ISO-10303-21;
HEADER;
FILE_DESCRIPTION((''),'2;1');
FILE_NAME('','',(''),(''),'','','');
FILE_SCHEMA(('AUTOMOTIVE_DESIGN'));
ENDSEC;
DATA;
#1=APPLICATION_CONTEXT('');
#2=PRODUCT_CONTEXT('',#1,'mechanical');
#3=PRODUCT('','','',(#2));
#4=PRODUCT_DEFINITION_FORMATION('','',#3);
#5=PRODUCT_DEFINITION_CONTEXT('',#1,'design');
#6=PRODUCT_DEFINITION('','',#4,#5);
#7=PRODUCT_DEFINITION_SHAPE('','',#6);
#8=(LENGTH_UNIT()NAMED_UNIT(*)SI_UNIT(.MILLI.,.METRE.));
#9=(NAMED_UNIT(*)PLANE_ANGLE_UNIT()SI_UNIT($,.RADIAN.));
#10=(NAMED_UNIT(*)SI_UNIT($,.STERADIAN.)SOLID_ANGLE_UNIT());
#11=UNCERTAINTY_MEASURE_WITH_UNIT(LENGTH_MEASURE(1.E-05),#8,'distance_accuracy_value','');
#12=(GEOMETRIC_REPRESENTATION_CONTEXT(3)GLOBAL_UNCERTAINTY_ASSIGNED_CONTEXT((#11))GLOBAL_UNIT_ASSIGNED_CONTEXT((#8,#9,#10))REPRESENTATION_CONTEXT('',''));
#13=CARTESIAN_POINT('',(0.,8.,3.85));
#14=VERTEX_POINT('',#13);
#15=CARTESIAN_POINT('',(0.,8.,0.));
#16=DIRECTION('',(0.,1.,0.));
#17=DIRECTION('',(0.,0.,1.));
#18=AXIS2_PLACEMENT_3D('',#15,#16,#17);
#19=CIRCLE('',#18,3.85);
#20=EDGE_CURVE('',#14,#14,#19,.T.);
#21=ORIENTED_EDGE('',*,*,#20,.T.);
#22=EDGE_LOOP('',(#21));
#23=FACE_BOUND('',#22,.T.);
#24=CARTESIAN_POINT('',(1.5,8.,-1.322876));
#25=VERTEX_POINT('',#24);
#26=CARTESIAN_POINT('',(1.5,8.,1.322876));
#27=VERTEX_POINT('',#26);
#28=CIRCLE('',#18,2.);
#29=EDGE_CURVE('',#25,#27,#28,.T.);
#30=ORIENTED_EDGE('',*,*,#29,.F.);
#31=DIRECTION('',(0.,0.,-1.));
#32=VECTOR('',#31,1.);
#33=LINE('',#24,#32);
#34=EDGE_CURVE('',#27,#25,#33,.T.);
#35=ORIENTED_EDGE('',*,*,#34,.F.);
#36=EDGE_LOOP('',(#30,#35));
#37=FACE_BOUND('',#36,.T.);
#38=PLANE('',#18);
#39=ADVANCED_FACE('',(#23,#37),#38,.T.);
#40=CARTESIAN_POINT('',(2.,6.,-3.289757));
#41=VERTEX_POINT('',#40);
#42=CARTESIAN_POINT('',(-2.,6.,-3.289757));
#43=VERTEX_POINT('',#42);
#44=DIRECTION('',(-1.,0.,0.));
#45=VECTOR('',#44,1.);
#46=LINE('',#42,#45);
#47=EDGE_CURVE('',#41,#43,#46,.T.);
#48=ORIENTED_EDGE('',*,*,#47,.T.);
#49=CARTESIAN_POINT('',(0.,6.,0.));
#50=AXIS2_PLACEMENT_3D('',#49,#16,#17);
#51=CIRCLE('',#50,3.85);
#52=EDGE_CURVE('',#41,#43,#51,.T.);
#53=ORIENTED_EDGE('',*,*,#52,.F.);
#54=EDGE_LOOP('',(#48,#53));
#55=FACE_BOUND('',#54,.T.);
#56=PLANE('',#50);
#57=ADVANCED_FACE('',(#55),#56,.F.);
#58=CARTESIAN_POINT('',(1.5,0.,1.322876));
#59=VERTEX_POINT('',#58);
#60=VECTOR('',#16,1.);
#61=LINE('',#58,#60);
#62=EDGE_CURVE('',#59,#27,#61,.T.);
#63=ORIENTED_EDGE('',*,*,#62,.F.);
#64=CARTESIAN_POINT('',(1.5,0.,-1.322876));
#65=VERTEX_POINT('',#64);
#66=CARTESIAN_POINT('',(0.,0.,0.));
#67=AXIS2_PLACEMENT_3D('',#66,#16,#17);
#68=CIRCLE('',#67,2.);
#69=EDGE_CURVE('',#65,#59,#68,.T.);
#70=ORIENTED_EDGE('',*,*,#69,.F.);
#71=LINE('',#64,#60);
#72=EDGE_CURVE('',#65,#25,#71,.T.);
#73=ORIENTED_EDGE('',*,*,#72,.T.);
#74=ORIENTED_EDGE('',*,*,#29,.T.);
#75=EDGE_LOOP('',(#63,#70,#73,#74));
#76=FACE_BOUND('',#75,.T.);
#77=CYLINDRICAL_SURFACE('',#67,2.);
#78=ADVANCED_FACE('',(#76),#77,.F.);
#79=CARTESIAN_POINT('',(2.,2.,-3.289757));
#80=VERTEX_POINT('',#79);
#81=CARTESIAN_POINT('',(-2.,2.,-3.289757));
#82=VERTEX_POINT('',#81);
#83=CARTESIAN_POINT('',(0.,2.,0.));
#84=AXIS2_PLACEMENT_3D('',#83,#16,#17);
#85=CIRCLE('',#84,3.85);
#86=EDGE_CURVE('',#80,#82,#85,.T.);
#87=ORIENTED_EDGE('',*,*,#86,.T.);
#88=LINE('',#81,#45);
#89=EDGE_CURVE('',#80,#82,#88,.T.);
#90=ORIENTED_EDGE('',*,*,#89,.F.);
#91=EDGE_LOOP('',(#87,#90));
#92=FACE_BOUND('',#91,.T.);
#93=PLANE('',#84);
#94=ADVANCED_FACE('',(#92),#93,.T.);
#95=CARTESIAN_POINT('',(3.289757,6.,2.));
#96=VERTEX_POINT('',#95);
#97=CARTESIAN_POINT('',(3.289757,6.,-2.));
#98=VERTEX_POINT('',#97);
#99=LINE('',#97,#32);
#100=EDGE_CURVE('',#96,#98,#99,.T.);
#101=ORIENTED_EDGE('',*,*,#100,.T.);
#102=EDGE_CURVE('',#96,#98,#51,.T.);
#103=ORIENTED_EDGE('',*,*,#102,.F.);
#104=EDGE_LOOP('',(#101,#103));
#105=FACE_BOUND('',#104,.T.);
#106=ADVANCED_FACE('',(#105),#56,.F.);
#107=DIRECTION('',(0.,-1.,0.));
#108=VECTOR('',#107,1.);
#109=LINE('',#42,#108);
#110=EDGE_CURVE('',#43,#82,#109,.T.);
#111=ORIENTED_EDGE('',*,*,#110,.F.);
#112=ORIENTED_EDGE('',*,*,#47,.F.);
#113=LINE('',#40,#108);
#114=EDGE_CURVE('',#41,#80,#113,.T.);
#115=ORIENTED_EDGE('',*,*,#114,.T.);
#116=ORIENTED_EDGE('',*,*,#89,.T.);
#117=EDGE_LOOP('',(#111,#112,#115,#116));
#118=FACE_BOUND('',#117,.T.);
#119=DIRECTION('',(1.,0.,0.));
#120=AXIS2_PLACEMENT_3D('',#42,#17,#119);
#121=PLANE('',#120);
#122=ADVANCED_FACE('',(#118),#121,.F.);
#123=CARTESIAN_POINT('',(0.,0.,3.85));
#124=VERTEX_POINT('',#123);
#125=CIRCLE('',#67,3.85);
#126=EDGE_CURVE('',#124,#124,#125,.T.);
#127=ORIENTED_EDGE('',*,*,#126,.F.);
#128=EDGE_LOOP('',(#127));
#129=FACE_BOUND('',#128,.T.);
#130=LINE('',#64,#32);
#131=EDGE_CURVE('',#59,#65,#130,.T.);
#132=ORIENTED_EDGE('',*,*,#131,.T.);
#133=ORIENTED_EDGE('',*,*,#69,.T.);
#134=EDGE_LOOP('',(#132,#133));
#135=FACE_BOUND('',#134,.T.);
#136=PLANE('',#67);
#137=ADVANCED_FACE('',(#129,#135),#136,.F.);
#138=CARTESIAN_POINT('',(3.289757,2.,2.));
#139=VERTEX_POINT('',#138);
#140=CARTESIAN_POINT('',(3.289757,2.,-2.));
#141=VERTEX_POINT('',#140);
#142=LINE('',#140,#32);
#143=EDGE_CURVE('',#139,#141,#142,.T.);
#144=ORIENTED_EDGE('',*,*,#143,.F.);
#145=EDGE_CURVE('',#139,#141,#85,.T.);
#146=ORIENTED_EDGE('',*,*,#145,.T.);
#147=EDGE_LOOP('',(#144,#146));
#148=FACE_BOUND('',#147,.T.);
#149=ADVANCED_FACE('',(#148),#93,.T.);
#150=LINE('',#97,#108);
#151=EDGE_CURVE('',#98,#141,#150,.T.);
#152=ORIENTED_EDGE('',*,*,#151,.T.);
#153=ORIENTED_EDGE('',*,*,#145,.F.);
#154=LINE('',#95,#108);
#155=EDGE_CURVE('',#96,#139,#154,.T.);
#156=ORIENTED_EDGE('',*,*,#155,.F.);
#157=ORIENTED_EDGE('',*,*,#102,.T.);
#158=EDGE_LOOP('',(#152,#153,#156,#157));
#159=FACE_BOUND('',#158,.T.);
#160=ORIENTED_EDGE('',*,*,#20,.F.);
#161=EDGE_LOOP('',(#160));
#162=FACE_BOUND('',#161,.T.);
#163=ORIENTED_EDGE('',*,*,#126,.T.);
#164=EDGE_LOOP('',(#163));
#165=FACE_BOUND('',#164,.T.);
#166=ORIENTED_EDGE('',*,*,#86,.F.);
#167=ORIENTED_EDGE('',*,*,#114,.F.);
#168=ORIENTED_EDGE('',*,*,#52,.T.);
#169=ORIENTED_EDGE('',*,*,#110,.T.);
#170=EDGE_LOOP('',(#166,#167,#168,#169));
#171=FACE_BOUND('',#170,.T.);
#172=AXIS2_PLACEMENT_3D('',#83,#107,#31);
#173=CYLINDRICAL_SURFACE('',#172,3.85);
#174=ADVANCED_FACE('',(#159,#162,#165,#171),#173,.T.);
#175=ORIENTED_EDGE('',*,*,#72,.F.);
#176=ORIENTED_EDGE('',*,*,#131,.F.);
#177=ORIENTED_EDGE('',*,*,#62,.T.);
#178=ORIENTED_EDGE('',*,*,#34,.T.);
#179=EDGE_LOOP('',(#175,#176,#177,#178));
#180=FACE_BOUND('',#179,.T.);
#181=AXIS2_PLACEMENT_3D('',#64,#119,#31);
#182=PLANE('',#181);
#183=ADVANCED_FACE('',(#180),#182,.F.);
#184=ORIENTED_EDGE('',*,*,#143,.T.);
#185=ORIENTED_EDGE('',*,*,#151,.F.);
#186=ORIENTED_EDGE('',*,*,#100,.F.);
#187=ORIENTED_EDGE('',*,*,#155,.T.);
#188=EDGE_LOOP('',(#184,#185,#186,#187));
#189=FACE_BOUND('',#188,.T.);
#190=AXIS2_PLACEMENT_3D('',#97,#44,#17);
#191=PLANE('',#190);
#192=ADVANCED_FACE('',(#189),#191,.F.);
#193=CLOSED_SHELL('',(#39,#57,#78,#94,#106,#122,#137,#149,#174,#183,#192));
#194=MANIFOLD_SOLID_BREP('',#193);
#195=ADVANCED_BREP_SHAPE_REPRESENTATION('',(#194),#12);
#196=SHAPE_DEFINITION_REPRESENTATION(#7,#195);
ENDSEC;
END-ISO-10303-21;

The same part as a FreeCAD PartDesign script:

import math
import FreeCAD as App
import Part
import Sketcher

V = App.Vector
Q = App.Units.Quantity

doc = App.newDocument("Part")
body = doc.addObject("PartDesign::Body", "Body")

sketch1 = body.newObject("Sketcher::SketchObject", "Sketch")
sketch1.AttachmentSupport = (doc.getObject("XZ_Plane"), [""])
sketch1.MapMode = "FlatFace"
sketch1.addGeometry(Part.Circle(V(0, 0, 0), V(0, 0, 1), 3.9), False)
sketch1.addConstraint(Sketcher.Constraint("Coincident", 0, 3, -1, 1))
sketch1.addConstraint(Sketcher.Constraint("Diameter", 0, Q("7.7 mm")))
pad1 = body.newObject("PartDesign::Pad", "Pad")
pad1.Profile = sketch1
pad1.Length = 2
pad1.Reversed = True

sketch2 = body.newObject("Sketcher::SketchObject", "Sketch001")
sketch2.AttachmentSupport = (doc.getObject("XZ_Plane"), [""])
sketch2.MapMode = "FlatFace"
sketch2.AttachmentOffset = App.Placement(V(0, 0, -2), App.Rotation())
sketch2.addGeometry(Part.LineSegment(V(3.3, 2, 0), V(3.3, -2, 0)), False)
sketch2.addGeometry(Part.ArcOfCircle(Part.Circle(V(0, 0, 0), V(0, 0, 1), 3.8), math.radians(-59), math.radians(-31)), False)
sketch2.addGeometry(Part.LineSegment(V(2, -3.3, 0), V(-2, -3.3, 0)), False)
sketch2.addGeometry(Part.ArcOfCircle(Part.Circle(V(0, 0, 0), V(0, 0, 1), 3.9), math.radians(31), math.radians(239)), False)
sketch2.addConstraint(Sketcher.Constraint("Coincident", 0, 2, 1, 2))
sketch2.addConstraint(Sketcher.Constraint("Coincident", 1, 1, 2, 1))
sketch2.addConstraint(Sketcher.Constraint("Coincident", 2, 2, 3, 2))
sketch2.addConstraint(Sketcher.Constraint("Coincident", 3, 1, 0, 1))
sketch2.addConstraint(Sketcher.Constraint("Vertical", 0))
sketch2.addConstraint(Sketcher.Constraint("Horizontal", 2))
sketch2.addConstraint(Sketcher.Constraint("Coincident", 1, 3, -1, 1))
sketch2.addConstraint(Sketcher.Constraint("Coincident", 3, 3, -1, 1))
sketch2.addConstraint(Sketcher.Constraint("Equal", 1, 3))
sketch2.addConstraint(Sketcher.Constraint("Equal", 2, 0))
sketch2.addConstraint(Sketcher.Constraint("DistanceX", 2, 2, 2, 1, Q("4 mm")))
sketch2.addConstraint(Sketcher.Constraint("Radius", 1, Q("3.85 mm")))
pad2 = body.newObject("PartDesign::Pad", "Pad001")
pad2.Profile = sketch2
pad2.Length = 4
pad2.Reversed = True

sketch3 = body.newObject("Sketcher::SketchObject", "Sketch002")
sketch3.AttachmentSupport = (doc.getObject("XZ_Plane"), [""])
sketch3.MapMode = "FlatFace"
sketch3.AttachmentOffset = App.Placement(V(0, 0, -6), App.Rotation())
sketch3.addGeometry(Part.Circle(V(0, 0, 0), V(0, 0, 1), 3.9), False)
sketch3.addConstraint(Sketcher.Constraint("Coincident", 0, 3, -1, 1))
sketch3.addConstraint(Sketcher.Constraint("Diameter", 0, Q("7.7 mm")))
pad3 = body.newObject("PartDesign::Pad", "Pad002")
pad3.Profile = sketch3
pad3.Length = 2
pad3.Reversed = True

sketch4 = body.newObject("Sketcher::SketchObject", "Sketch003")
sketch4.AttachmentSupport = (doc.getObject("XZ_Plane"), [""])
sketch4.MapMode = "FlatFace"
sketch4.AttachmentOffset = App.Placement(V(0, 0, -8), App.Rotation())
sketch4.addGeometry(Part.LineSegment(V(1.5, 1.3, 0), V(1.5, -1.3, 0)), False)
sketch4.addGeometry(Part.ArcOfCircle(Part.Circle(V(0, 0, 0), V(0, 0, 1), 2), math.radians(41), math.radians(319)), False)
sketch4.addConstraint(Sketcher.Constraint("Coincident", 0, 1, 1, 1))
sketch4.addConstraint(Sketcher.Constraint("Coincident", 1, 2, 0, 2))
sketch4.addConstraint(Sketcher.Constraint("Vertical", 0))
sketch4.addConstraint(Sketcher.Constraint("Coincident", 1, 3, -1, 1))
sketch4.addConstraint(Sketcher.Constraint("Radius", 1, Q("2 mm")))
sketch4.addConstraint(Sketcher.Constraint("DistanceX", -1, 1, 0, 1, Q("1.5 mm")))
pocket1 = body.newObject("PartDesign::Pocket", "Pocket")
pocket1.Profile = sketch4
pocket1.Type = "ThroughAll"
pocket1.Reversed = True

doc.recompute()
